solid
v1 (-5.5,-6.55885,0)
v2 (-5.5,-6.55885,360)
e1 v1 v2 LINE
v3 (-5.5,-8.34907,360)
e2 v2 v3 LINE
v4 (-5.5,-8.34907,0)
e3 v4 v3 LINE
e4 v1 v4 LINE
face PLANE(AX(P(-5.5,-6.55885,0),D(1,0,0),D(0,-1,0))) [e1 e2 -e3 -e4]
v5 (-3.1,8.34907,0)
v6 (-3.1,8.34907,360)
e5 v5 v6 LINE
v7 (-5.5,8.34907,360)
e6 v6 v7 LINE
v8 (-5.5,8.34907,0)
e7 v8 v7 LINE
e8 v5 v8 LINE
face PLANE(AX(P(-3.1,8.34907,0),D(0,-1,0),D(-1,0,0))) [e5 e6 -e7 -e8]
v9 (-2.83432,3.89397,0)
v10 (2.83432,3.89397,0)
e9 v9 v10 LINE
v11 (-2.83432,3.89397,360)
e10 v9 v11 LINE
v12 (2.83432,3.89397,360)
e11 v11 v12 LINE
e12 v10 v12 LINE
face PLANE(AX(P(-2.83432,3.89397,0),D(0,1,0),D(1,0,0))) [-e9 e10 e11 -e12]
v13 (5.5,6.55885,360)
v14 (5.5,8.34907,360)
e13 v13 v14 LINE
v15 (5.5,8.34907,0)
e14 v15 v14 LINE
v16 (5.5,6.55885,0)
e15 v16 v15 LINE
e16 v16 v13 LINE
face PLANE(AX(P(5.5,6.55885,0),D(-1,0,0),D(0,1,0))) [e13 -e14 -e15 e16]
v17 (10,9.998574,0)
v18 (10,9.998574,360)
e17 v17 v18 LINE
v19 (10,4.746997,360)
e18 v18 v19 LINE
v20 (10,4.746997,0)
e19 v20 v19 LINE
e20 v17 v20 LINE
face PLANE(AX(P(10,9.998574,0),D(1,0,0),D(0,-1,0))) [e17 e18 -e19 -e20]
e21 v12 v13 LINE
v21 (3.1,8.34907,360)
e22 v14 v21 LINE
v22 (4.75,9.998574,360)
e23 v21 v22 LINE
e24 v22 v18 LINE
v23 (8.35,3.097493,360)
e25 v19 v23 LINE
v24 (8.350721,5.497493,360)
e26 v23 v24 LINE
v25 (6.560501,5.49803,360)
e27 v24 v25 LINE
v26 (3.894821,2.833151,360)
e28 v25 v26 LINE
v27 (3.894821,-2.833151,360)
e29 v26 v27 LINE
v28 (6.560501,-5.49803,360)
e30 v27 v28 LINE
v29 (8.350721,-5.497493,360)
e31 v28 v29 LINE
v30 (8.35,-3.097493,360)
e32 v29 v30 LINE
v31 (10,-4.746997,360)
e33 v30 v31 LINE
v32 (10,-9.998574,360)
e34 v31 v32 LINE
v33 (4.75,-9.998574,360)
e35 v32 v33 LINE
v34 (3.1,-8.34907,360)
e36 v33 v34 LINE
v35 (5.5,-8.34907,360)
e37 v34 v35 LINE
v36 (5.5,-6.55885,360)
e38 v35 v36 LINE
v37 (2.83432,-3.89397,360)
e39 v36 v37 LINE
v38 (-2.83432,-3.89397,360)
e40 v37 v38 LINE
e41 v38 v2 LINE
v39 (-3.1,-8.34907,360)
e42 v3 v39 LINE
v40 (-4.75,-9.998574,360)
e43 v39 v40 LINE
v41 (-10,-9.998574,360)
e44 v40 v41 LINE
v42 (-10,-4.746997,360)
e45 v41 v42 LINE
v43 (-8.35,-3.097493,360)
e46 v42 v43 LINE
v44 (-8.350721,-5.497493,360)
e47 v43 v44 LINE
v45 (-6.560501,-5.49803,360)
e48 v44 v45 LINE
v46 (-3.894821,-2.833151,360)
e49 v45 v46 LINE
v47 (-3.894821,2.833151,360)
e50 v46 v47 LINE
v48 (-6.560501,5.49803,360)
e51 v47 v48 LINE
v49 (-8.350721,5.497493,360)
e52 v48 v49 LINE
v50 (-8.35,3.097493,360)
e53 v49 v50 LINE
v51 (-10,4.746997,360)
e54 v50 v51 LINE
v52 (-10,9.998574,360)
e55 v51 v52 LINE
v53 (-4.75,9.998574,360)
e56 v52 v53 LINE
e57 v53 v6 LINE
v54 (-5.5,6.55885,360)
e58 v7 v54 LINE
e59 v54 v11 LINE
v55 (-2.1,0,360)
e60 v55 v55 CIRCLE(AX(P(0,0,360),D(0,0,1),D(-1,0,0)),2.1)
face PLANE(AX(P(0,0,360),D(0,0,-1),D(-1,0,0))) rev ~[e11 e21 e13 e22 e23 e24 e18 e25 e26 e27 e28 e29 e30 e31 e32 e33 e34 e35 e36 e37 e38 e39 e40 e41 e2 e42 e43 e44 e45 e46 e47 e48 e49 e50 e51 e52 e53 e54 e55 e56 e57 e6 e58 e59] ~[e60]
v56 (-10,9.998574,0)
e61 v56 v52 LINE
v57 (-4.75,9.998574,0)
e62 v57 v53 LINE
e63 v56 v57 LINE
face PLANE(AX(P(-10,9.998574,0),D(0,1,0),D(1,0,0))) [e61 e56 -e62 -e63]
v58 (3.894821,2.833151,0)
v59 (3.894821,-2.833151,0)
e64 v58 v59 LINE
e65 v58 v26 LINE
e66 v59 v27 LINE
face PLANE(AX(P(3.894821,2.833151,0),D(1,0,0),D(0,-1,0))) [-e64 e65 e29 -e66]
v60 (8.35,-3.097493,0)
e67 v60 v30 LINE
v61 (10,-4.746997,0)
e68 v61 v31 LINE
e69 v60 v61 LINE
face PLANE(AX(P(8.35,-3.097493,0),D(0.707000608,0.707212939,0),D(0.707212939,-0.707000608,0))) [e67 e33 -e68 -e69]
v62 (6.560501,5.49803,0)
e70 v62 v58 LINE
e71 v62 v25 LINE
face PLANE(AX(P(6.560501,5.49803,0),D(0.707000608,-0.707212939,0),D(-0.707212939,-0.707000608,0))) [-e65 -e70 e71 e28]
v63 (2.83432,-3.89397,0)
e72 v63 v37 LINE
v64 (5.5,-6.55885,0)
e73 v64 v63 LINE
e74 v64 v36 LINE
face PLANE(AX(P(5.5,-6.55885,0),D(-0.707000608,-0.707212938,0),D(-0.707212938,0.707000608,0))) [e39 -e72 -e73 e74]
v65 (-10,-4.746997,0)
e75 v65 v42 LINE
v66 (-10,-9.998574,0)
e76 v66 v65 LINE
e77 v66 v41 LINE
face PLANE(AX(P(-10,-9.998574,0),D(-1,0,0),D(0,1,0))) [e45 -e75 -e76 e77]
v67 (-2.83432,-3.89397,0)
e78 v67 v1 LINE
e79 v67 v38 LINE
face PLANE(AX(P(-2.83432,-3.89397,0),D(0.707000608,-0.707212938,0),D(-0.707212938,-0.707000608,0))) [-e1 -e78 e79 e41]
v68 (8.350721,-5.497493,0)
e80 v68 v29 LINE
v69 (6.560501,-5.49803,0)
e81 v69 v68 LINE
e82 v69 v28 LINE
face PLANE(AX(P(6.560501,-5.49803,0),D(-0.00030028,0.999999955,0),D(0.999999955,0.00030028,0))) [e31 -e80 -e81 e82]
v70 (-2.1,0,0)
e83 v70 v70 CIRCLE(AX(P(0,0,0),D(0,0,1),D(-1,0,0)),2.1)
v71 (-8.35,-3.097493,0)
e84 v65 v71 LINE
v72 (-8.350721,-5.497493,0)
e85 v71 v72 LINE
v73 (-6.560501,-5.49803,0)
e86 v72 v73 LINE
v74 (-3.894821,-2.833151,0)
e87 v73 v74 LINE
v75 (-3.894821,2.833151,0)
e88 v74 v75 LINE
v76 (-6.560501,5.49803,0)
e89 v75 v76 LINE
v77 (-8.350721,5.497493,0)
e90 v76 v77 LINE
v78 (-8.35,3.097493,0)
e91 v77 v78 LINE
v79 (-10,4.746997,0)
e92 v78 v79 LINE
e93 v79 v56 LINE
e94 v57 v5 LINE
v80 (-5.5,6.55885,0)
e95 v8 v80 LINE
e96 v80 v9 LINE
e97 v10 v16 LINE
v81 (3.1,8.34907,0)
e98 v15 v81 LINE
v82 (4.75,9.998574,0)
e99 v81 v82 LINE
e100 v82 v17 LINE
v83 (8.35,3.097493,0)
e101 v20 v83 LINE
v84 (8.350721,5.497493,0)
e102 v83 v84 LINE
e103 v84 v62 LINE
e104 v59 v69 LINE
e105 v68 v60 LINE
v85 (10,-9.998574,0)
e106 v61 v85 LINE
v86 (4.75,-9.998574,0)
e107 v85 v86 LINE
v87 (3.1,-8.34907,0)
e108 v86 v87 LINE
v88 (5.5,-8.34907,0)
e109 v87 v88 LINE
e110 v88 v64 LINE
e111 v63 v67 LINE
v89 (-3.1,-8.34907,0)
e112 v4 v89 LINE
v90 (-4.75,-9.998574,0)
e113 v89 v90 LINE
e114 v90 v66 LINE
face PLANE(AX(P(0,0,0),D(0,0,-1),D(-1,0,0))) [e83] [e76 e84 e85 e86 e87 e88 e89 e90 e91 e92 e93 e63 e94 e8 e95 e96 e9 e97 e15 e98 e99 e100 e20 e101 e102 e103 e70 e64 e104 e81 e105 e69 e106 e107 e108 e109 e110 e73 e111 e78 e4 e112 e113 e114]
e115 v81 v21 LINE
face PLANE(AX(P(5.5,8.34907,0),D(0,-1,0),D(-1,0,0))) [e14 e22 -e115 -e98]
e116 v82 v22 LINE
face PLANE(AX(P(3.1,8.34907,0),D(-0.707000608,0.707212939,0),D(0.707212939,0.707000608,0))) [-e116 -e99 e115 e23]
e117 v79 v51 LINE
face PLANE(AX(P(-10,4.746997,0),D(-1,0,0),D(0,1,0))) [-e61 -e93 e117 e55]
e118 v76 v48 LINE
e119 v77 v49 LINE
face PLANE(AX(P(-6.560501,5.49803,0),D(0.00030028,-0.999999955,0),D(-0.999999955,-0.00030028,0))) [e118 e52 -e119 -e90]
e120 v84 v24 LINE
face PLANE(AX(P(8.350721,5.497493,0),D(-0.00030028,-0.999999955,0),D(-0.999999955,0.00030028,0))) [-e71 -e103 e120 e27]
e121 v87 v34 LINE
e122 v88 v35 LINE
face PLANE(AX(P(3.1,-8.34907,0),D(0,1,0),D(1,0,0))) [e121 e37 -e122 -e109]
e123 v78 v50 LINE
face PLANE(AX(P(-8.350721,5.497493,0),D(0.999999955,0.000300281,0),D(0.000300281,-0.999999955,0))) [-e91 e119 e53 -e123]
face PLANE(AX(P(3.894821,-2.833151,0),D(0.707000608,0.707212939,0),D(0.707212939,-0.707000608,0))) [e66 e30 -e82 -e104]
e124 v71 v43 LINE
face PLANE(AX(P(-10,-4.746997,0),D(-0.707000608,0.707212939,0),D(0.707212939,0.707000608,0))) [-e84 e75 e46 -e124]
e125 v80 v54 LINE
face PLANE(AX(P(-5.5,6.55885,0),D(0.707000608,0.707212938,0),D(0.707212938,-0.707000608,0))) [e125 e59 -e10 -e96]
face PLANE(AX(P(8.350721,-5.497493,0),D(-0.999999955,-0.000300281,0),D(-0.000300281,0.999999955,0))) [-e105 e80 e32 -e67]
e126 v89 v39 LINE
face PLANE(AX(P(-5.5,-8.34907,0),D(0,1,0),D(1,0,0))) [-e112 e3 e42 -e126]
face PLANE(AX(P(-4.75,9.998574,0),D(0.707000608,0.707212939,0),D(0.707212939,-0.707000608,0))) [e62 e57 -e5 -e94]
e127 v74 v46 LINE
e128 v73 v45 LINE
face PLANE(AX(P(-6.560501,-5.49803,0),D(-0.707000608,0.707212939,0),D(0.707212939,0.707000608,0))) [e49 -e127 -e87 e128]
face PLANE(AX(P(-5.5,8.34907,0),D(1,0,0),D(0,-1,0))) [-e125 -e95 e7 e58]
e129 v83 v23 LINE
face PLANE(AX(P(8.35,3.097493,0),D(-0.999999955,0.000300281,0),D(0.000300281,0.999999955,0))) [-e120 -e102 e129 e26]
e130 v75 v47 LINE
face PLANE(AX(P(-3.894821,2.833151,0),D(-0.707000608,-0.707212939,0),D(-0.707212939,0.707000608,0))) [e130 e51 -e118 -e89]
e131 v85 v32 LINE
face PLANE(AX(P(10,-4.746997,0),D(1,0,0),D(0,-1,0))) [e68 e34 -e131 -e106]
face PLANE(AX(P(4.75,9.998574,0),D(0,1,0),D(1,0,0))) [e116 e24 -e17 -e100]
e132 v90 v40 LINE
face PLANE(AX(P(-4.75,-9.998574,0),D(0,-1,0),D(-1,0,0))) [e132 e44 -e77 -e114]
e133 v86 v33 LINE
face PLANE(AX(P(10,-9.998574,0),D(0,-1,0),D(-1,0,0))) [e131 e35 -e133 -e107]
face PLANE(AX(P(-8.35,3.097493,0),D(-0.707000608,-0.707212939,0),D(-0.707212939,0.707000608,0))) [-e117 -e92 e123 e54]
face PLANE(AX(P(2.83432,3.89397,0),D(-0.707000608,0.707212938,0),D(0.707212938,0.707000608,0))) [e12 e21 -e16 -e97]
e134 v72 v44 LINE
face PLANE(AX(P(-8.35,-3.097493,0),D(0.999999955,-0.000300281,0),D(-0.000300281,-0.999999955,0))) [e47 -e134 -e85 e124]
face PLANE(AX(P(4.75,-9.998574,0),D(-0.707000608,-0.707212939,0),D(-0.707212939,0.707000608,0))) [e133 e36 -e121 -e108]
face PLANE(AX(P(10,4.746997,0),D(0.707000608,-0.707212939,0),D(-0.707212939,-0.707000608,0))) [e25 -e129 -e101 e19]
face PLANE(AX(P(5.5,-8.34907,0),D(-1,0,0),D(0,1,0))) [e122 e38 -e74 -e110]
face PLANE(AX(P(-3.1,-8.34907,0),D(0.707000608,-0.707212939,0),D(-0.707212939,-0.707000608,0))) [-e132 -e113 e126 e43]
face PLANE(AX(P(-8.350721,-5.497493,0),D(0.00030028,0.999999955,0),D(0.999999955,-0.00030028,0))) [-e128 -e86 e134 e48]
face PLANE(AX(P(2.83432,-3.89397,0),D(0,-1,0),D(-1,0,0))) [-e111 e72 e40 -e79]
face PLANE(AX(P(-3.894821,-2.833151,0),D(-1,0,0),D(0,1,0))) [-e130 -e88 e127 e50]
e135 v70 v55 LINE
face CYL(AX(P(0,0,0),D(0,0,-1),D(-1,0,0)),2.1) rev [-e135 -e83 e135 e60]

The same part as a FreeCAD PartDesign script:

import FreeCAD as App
import Part
import Sketcher


def add_polygon(sketch, points):
    """Adds a closed chain of lines whose ends are joined by coincident constraints."""
    first, n = sketch.GeometryCount, len(points)
    for a, b in zip(points, points[1:] + points[:1]):
        sketch.addGeometry(Part.LineSegment(App.Vector(*a, 0), App.Vector(*b, 0)), False)
    for i in range(n):
        sketch.addConstraint(Sketcher.Constraint("Coincident", first + i, 2, first + (i + 1) % n, 1))

doc = App.newDocument("Part")
params = doc.addObject("Spreadsheet::Sheet", "Params")
for row, (alias, value) in enumerate([
    ("sketch1_diameter", "4.2 mm"),
    ("sketch1_width", "2.4 mm"),
    ("sketch1_length", "2.4 mm"),
    ("sketch1_width2", "5.25 mm"),
    ("pad1_length", "360 mm"),
], start=1):
    params.set(f"A{row}", alias)
    params.set(f"B{row}", "=" + value)
    params.setAlias(f"B{row}", alias)

body = doc.addObject("PartDesign::Body", "Body")

# Sketch on XY plane
sketch1 = body.newObject("Sketcher::SketchObject", "Sketch")
sketch1.AttachmentSupport = (doc.getObject("XY_Plane"), [""])
sketch1.MapMode = "FlatFace"
add_polygon(sketch1, [(5.5, 6.55885), (2.83432, 3.89397), (-2.83432, 3.89397), (-5.5, 6.55885), (-5.5, 8.34907), (-3.1, 8.34907), (-4.75, 9.998574), (-10, 9.998574), (-10, 4.746997), (-8.35, 3.097493), (-8.350721, 5.497493), (-6.560501, 5.49803), (-3.894821, 2.833151), (-3.894821, -2.833151), (-6.560501, -5.49803), (-8.350721, -5.497493), (-8.35, -3.097493), (-10, -4.746997), (-10, -9.998574), (-4.75, -9.998574), (-3.1, -8.34907), (-5.5, -8.34907), (-5.5, -6.55885), (-2.83432, -3.89397), (2.83432, -3.89397), (5.5, -6.55885), (5.5, -8.34907), (3.1, -8.34907), (4.75, -9.998574), (10, -9.998574), (10, -4.746997), (8.35, -3.097493), (8.350721, -5.497493), (6.560501, -5.49803), (3.894821, -2.833151), (3.894821, 2.833151), (6.560501, 5.49803), (8.350721, 5.497493), (8.35, 3.097493), (10, 4.746997), (10, 9.998574), (4.75, 9.998574), (3.1, 8.34907), (5.5, 8.34907)])  # lines 0-43
sketch1.addGeometry(Part.Circle(App.Vector(0, 0, 0), App.Vector(0, 0, 1), 2.1), False)  # 44
sketch1.addConstraint([
    Sketcher.Constraint("Horizontal", 1),
    Sketcher.Constraint("Vertical", 3),
    Sketcher.Constraint("Horizontal", 4),
    Sketcher.Constraint("Horizontal", 6),
    Sketcher.Constraint("Vertical", 7),
    Sketcher.Constraint("Vertical", 12),
    Sketcher.Constraint("Vertical", 17),
    Sketcher.Constraint("Horizontal", 18),
    Sketcher.Constraint("Horizontal", 20),
    Sketcher.Constraint("Vertical", 21),
    Sketcher.Constraint("Horizontal", 23),
    Sketcher.Constraint("Vertical", 25),
    Sketcher.Constraint("Horizontal", 26),
    Sketcher.Constraint("Horizontal", 28),
    Sketcher.Constraint("Vertical", 29),
    Sketcher.Constraint("Vertical", 34),
    Sketcher.Constraint("Vertical", 39),
    Sketcher.Constraint("Horizontal", 40),
    Sketcher.Constraint("Horizontal", 42),
    Sketcher.Constraint("Vertical", 43),
    Sketcher.Constraint("Coincident", 44, 3, -1, 1),
    Sketcher.Constraint("Symmetric", 0, 2, 22, 2, -1, 1),
    Sketcher.Constraint("Symmetric", 2, 2, 24, 2, -1, 1),
    Sketcher.Constraint("Symmetric", 4, 2, 26, 2, -1, 1),
    Sketcher.Constraint("Symmetric", 5, 2, 27, 2, -1, 1),
    Sketcher.Constraint("Symmetric", 7, 2, 29, 2, -1, 1),
    Sketcher.Constraint("Symmetric", 8, 2, 30, 2, -1, 1),
    Sketcher.Constraint("Symmetric", 9, 2, 31, 2, -1, 1),
    Sketcher.Constraint("Symmetric", 10, 2, 32, 2, -1, 1),
    Sketcher.Constraint("Symmetric", 11, 2, 33, 2, -1, 1),
    Sketcher.Constraint("Symmetric", 13, 2, 35, 2, -1, 1),
    Sketcher.Constraint("Symmetric", 14, 2, 36, 2, -1, 1),
    Sketcher.Constraint("Symmetric", 15, 2, 37, 2, -1, 1),
    Sketcher.Constraint("Symmetric", 16, 2, 38, 2, -1, 1),
    Sketcher.Constraint("Symmetric", 18, 2, 40, 2, -1, 1),
    Sketcher.Constraint("Symmetric", 19, 2, 41, 2, -1, 1),
    Sketcher.Constraint("Symmetric", 21, 2, 43, 2, -1, 1),
    Sketcher.Constraint("Symmetric", 21, 2, 24, 2, -2),
    Sketcher.Constraint("Symmetric", 19, 2, 26, 2, -2),
    Sketcher.Constraint("Symmetric", 18, 2, 27, 2, -2),
    Sketcher.Constraint("Symmetric", 16, 2, 29, 2, -2),
    Sketcher.Constraint("Symmetric", 15, 2, 30, 2, -2),
    Sketcher.Constraint("Symmetric", 14, 2, 31, 2, -2),
    Sketcher.Constraint("Symmetric", 13, 2, 32, 2, -2),
    Sketcher.Constraint("Parallel", 2, 5),
    Sketcher.Constraint("Parallel", 5, 8),
    Sketcher.Constraint("Perpendicular", 9, 10),
    Sketcher.Constraint("Parallel", 8, 11),
    Sketcher.Constraint("Parallel", 0, 13),
    Sketcher.Constraint("Parallel", 13, 16),
    Sketcher.Constraint("Parallel", 11, 24),
    Sketcher.Constraint("Parallel", 22, 35),
    Sketcher.Constraint("Equal", 5, 8),
    Sketcher.Constraint("Equal", 2, 11),
    Sketcher.Constraint("Diameter", 44, 4.2),
    Sketcher.Constraint("DistanceX", 4, 1, 4, 2, 2.4),
    Sketcher.Constraint("DistanceX", 6, 2, -1, 1, 10.0),
    Sketcher.Constraint("Distance", 9, 2.4),
    Sketcher.Constraint("DistanceX", 6, 2, 6, 1, 5.25),
    Sketcher.Constraint("DistanceX", 2, 2, -1, 1, 5.5),
    Sketcher.Constraint("DistanceY", 12, 2, 12, 1, 5.666302),
    Sketcher.Constraint("DistanceY", 13, 2, 1, 2, 9.392001),
    Sketcher.Constraint("DistanceX", 1, 2, 1, 1, 5.668641),
    Sketcher.Constraint("DistanceY", 3, 1, 3, 2, 1.79022),
    Sketcher.Constraint("DistanceX", 10, 2, -1, 1, 6.560501),
    Sketcher.Constraint("DistanceY", 1, 2, 3, 2, 4.455099),
    Sketcher.Constraint("DistanceX", 14, 2, 12, 2, 4.455899),
])
sketch1.setExpression("Constraints[98]", "Params.sketch1_diameter")
sketch1.setExpression("Constraints[99]", "Params.sketch1_width")
sketch1.setExpression("Constraints[101]", "Params.sketch1_length")
sketch1.setExpression("Constraints[102]", "Params.sketch1_width2")
pad1 = body.newObject("PartDesign::Pad", "Pad")
pad1.Profile = sketch1
pad1.setExpression("Length", "Params.pad1_length")

doc.recompute()
